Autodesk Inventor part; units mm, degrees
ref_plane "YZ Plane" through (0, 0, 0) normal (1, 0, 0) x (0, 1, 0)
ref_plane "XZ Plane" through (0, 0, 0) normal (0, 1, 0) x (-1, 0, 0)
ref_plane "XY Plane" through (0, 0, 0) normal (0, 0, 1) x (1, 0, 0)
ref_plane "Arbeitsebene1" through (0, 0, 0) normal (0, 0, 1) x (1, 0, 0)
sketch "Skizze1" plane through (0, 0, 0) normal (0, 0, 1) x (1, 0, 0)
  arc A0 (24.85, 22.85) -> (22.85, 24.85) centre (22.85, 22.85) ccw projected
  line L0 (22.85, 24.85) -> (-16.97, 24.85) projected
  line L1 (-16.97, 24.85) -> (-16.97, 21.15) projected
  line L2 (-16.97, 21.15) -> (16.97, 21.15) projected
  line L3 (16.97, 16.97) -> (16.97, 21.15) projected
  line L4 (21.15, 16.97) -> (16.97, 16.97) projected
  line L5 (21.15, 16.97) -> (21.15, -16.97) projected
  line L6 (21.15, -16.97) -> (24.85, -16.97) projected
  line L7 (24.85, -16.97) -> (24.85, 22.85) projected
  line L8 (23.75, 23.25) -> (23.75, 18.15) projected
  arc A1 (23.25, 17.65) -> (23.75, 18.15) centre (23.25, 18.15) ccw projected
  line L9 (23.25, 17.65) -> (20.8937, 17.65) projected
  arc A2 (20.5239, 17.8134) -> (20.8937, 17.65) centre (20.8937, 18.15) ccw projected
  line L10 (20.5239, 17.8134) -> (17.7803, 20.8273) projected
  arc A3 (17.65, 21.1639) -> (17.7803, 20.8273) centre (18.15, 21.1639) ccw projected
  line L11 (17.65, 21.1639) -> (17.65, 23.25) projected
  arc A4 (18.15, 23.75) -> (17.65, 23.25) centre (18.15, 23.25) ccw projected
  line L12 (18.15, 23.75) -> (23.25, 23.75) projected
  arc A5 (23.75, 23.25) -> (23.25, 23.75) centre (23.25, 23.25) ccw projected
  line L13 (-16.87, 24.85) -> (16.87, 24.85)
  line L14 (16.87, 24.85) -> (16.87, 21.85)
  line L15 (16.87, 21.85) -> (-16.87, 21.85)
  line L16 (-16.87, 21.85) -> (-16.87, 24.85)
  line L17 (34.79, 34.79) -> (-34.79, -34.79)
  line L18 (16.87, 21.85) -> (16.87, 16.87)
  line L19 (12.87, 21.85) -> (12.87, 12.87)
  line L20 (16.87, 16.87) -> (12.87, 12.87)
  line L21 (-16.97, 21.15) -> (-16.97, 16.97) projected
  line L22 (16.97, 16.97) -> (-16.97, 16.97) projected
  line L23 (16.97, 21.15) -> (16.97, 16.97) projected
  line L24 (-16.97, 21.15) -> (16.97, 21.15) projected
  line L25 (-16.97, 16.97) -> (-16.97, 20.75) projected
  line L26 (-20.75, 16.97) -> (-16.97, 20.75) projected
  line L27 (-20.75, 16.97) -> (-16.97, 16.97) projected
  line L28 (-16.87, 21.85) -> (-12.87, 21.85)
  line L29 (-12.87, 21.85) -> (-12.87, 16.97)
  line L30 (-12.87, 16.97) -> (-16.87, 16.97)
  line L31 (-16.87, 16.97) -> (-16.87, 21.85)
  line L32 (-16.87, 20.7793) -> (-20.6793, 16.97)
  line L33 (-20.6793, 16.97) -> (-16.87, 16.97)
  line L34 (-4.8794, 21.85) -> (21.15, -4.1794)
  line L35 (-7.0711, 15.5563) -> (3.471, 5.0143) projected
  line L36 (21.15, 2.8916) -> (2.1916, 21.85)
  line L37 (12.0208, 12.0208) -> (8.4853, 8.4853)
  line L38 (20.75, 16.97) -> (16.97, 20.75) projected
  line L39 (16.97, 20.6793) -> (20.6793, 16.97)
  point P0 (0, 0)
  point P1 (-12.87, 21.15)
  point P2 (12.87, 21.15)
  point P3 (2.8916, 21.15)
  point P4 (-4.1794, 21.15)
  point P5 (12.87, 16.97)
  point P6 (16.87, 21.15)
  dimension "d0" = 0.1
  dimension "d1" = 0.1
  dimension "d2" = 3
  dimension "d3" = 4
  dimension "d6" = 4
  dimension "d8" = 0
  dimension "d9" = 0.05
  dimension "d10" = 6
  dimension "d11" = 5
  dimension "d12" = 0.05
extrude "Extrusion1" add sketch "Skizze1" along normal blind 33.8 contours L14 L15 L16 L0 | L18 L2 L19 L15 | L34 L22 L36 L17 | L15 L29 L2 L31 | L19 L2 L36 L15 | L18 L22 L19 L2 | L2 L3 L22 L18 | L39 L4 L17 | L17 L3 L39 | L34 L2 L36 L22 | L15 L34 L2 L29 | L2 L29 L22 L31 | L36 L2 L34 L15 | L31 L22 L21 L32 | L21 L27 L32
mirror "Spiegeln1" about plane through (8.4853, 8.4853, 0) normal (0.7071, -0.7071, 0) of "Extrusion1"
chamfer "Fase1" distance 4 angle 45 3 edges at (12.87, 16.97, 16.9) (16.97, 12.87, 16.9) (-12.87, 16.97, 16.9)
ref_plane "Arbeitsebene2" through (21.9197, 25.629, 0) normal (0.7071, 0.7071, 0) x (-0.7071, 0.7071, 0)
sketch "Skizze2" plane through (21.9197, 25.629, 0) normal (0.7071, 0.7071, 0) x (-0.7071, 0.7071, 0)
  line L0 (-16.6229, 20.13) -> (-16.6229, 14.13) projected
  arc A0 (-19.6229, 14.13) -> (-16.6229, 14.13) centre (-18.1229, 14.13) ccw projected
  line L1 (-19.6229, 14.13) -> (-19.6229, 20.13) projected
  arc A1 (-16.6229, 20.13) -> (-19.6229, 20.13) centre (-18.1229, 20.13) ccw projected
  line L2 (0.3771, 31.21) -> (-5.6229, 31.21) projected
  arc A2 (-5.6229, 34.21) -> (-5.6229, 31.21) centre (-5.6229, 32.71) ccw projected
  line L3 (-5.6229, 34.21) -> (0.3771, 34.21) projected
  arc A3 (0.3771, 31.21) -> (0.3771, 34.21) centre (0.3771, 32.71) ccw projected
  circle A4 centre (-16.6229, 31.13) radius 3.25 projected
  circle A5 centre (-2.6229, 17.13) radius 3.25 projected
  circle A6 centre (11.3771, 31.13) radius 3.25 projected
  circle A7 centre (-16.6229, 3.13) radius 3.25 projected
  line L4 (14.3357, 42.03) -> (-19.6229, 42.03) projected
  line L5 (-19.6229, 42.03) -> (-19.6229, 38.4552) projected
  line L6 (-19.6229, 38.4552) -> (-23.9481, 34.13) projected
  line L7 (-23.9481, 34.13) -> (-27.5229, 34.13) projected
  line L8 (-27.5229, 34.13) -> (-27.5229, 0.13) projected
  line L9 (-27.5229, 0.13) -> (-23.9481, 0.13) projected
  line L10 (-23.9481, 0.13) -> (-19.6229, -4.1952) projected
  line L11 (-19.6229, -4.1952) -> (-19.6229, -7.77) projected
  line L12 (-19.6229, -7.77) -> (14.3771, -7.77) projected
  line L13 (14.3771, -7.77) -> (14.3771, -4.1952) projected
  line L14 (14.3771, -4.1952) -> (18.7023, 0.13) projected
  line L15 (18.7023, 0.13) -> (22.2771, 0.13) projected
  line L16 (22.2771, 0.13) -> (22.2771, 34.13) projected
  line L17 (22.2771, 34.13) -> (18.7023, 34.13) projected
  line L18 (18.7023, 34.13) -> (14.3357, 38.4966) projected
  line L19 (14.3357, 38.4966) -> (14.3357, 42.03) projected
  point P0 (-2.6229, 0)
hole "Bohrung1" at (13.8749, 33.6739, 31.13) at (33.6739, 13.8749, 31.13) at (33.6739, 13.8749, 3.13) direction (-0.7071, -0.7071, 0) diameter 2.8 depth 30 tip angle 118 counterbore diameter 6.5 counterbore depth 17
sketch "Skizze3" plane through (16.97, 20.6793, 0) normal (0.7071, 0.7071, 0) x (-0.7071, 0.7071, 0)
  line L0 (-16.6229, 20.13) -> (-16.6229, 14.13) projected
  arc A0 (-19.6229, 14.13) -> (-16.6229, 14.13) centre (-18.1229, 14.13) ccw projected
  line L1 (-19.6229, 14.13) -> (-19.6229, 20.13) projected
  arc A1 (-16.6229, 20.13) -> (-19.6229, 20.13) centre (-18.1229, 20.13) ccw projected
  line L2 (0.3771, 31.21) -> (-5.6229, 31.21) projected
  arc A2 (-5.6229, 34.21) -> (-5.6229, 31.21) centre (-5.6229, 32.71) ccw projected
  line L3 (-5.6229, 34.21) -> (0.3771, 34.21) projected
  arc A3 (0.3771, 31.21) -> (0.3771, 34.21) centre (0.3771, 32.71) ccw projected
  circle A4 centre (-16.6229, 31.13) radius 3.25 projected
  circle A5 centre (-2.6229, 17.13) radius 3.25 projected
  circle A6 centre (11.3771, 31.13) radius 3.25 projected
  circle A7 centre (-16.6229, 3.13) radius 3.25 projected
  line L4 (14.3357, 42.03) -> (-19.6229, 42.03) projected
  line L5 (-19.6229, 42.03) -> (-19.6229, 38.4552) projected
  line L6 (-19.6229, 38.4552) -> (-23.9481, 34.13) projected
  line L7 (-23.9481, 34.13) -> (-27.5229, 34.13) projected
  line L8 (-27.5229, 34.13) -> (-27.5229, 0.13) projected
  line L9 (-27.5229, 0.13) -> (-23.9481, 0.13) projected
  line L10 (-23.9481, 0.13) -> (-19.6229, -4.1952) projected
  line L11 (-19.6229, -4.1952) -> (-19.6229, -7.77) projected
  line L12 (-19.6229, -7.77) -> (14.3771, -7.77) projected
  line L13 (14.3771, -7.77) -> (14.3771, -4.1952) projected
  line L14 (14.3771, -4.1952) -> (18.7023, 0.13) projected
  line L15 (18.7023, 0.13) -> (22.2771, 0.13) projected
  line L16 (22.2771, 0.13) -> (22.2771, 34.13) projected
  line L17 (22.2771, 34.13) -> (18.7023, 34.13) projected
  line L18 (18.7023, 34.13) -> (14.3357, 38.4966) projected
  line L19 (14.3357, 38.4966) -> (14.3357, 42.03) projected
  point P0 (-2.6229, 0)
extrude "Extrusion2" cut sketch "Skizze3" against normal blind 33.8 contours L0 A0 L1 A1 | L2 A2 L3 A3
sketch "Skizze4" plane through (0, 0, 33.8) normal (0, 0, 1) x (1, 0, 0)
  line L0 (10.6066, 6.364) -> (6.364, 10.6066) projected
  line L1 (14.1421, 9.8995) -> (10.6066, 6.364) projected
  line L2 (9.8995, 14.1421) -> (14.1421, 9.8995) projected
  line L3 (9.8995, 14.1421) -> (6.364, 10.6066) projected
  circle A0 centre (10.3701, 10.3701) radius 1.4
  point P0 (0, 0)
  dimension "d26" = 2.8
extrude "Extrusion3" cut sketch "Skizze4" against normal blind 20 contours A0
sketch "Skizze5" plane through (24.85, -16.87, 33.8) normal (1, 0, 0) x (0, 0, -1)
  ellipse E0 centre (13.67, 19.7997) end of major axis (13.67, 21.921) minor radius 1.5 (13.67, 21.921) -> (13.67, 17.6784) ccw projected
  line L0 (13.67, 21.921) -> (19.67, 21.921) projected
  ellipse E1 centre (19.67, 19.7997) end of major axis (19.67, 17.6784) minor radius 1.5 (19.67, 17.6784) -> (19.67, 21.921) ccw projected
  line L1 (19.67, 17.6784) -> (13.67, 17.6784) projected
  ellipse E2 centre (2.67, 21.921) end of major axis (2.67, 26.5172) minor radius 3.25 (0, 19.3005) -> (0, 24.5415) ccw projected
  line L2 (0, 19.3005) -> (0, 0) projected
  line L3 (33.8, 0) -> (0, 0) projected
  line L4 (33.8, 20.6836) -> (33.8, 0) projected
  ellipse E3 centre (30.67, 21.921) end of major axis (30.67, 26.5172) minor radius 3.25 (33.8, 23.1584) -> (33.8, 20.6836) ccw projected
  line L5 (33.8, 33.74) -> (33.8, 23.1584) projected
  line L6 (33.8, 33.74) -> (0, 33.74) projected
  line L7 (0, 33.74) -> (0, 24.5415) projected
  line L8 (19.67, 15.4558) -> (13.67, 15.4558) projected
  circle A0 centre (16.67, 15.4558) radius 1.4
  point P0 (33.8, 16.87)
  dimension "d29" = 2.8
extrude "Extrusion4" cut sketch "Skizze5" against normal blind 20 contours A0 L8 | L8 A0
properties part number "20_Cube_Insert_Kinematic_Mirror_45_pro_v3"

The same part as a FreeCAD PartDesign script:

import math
import FreeCAD as App
import Part
import Sketcher
from FreeCAD import Vector
Q = App.Units.Quantity


def edges_at(feature, points):
    """Names of the edges that pass closest to the given points."""
    edges = feature.Shape.Edges
    near = lambda p: min(range(len(edges)), key=lambda i: edges[i].distToShape(Part.Vertex(*p))[0])
    return sorted({f"Edge{near(p) + 1}" for p in points})

doc = App.newDocument("Part")
params = doc.addObject("Spreadsheet::Sheet", "Params")
for row, (alias, value) in enumerate([
    ("sketch1_length", "5 mm"),
    ("sketch1_width", "0.1 mm"),
    ("sketch1_height", "3.7 mm"),
    ("sketch1_width2", "33.74 mm"),
    ("sketch1_height2", "4.18 mm"),
    ("pad1_length", "33.8 mm"),
    ("chamfer_size", "4 mm"),
    ("sketch2_diameter", "2.8 mm"),
    ("hole_diameter", "2.8 mm"),
    ("hole_depth", "30 mm"),
    ("hole_cbore_diameter", "6.5 mm"),
    ("hole_cbore_depth", "17 mm"),
    ("sketch3_radius", "1.5 mm"),
    ("sketch3_width", "6 mm"),
    ("pocket1_length", "33.8 mm"),
    ("sketch4_diameter", "2.8 mm"),
    ("pocket2_length", "20 mm"),
    ("sketch5_diameter", "2.8 mm"),
    ("pocket3_length", "20 mm"),
], start=1):
    params.set(f"A{row}", alias)
    params.set(f"B{row}", "=" + value)
    params.setAlias(f"B{row}", alias)

body = doc.addObject("PartDesign::Body", "Body")

sketch1 = doc.addObject("Sketcher::SketchObject", "Sketch")
body.addObject(sketch1)
sketch1.AttachmentSupport = (doc.XY_Plane, [""])
sketch1.MapMode = "FlatFace"
sketch1.addGeometry([
    Part.LineSegment(Vector(16.87, 24.85, 0), Vector(-16.87, 24.85, 0)),
    Part.LineSegment(Vector(-16.87, 24.85, 0), Vector(-16.87, 20.78, 0)),
    Part.LineSegment(Vector(-16.87, 20.78, 0), Vector(-20.68, 16.97, 0)),
    Part.LineSegment(Vector(-20.68, 16.97, 0), Vector(-12.87, 16.97, 0)),
    Part.LineSegment(Vector(-12.87, 16.97, 0), Vector(-12.87, 21.15, 0)),
    Part.LineSegment(Vector(-12.87, 21.15, 0), Vector(-4.18, 21.15, 0)),
    Part.LineSegment(Vector(-4.18, 21.15, 0), Vector(8.49, 8.49, 0)),
    Part.LineSegment(Vector(8.49, 8.49, 0), Vector(12.02, 12.02, 0)),
    Part.LineSegment(Vector(12.02, 12.02, 0), Vector(2.89, 21.15, 0)),
    Part.LineSegment(Vector(2.89, 21.15, 0), Vector(12.87, 21.15, 0)),
    Part.LineSegment(Vector(12.87, 21.15, 0), Vector(12.87, 16.97, 0)),
    Part.LineSegment(Vector(12.87, 16.97, 0), Vector(20.68, 16.97, 0)),
    Part.LineSegment(Vector(20.68, 16.97, 0), Vector(16.97, 20.68, 0)),
    Part.LineSegment(Vector(16.97, 20.68, 0), Vector(16.97, 21.15, 0)),
    Part.LineSegment(Vector(16.97, 21.15, 0), Vector(16.87, 21.15, 0)),
    Part.LineSegment(Vector(16.87, 21.15, 0), Vector(16.87, 24.85, 0)),
], False)
sketch1.addConstraint([
    Sketcher.Constraint("Coincident", 0, 2, 1, 1),
    Sketcher.Constraint("Coincident", 1, 2, 2, 1),
    Sketcher.Constraint("Coincident", 2, 2, 3, 1),
    Sketcher.Constraint("Coincident", 3, 2, 4, 1),
    Sketcher.Constraint("Coincident", 4, 2, 5, 1),
    Sketcher.Constraint("Coincident", 5, 2, 6, 1),
    Sketcher.Constraint("Coincident", 6, 2, 7, 1),
    Sketcher.Constraint("Coincident", 7, 2, 8, 1),
    Sketcher.Constraint("Coincident", 8, 2, 9, 1),
    Sketcher.Constraint("Coincident", 9, 2, 10, 1),
    Sketcher.Constraint("Coincident", 10, 2, 11, 1),
    Sketcher.Constraint("Coincident", 11, 2, 12, 1),
    Sketcher.Constraint("Coincident", 12, 2, 13, 1),
    Sketcher.Constraint("Coincident", 13, 2, 14, 1),
    Sketcher.Constraint("Coincident", 14, 2, 15, 1),
    Sketcher.Constraint("Coincident", 15, 2, 0, 1),
    Sketcher.Constraint("Horizontal", 0),
    Sketcher.Constraint("Vertical", 1),
    Sketcher.Constraint("Horizontal", 3),
    Sketcher.Constraint("Vertical", 4),
    Sketcher.Constraint("Horizontal", 5),
    Sketcher.Constraint("Horizontal", 9),
    Sketcher.Constraint("Vertical", 10),
    Sketcher.Constraint("Horizontal", 11),
    Sketcher.Constraint("Vertical", 13),
    Sketcher.Constraint("Horizontal", 14),
    Sketcher.Constraint("Vertical", 15),
    Sketcher.Constraint("Symmetric", 4, 2, 9, 2, -2),
    Sketcher.Constraint("Symmetric", 2, 2, 11, 2, -2),
    Sketcher.Constraint("Perpendicular", 2, 6),
    Sketcher.Constraint("Perpendicular", 6, 7),
    Sketcher.Constraint("Perpendicular", 7, 8),
    Sketcher.Constraint("Parallel", 8, 12),
    Sketcher.Constraint("Horizontal", 9, 2, 13, 2),
    Sketcher.Constraint("Distance", 7, 5.0),
    Sketcher.Constraint("DistanceX", 14, 2, 14, 1, 0.1),
    Sketcher.Constraint("DistanceX", 1, 2, 3, 2, 4.0),
    Sketcher.Constraint("DistanceX", 9, 2, 14, 2, 4.0),
    Sketcher.Constraint("Angle", 2, Q("-135 deg")),
    Sketcher.Constraint("DistanceY", 15, 1, 15, 2, 3.7),
    Sketcher.Constraint("DistanceX", 0, 2, 0, 1, 33.74),
    Sketcher.Constraint("DistanceY", 4, 1, 4, 2, 4.18),
    Sketcher.Constraint("DistanceX", 2, 2, 5, 2, 16.5),
    Sketcher.Constraint("DistanceY", -1, 1, 0, 2, 24.85),
    Sketcher.Constraint("DistanceX", 3, 1, 3, 2, 7.8093),
    Sketcher.Constraint("DistanceY", 6, 2, 1, 2, 12.294),
])
sketch1.setExpression("Constraints[34]", "Params.sketch1_length")
sketch1.setExpression("Constraints[35]", "Params.sketch1_width")
sketch1.setExpression("Constraints[39]", "Params.sketch1_height")
sketch1.setExpression("Constraints[40]", "Params.sketch1_width2")
sketch1.setExpression("Constraints[41]", "Params.sketch1_height2")
pad1 = doc.addObject("PartDesign::Pad", "Pad")
body.addObject(pad1)
pad1.Profile = sketch1
pad1.setExpression("Length", "Params.pad1_length")
doc.recompute()

datumplane = doc.addObject("PartDesign::Plane", "DatumPlane")
body.addObject(datumplane)
datumplane.Placement = App.Placement(Vector(0, 0, 0), App.Rotation(Vector(0.707106781, 0.707106781, 0), Vector(0, 0, -1), Vector(-0.707106781, 0.707106781, 0), "ZXY"))
mirrored = doc.addObject("PartDesign::Mirrored", "Mirrored")
body.addObject(mirrored)
mirrored.Originals = [pad1]
mirrored.MirrorPlane = (datumplane, [""])
body.Tip = mirrored
doc.recompute()

chamfer = doc.addObject("PartDesign::Chamfer", "Chamfer")
body.addObject(chamfer)
chamfer.Base = (mirrored, edges_at(mirrored, [(12.87, 16.97, 16.9), (16.97, 12.87, 16.9), (-12.87, 16.97, 16.9)]))
chamfer.setExpression("Size", "Params.chamfer_size")

sketch2 = doc.addObject("Sketcher::SketchObject", "Sketch001")
body.addObject(sketch2)
sketch2.Placement = App.Placement(Vector(23.7744, 23.7744, 0), App.Rotation(Vector(-0.707106781, 0.707106781, 0), Vector(0, 0, 0.999999999), Vector(0.707106781, 0.707106781, 0), "ZXY"))
sketch2.addGeometry([
    Part.Circle(Vector(14, 31.1, 0), Vector(0, 0, 1), 1.4),
    Part.Circle(Vector(-14, 31.1, 0), Vector(0, 0, 1), 1.4),
    Part.Circle(Vector(-14, 3.1, 0), Vector(0, 0, 1), 1.4),
], False)
sketch2.addConstraint([
    Sketcher.Constraint("Equal", 0, 1),
    Sketcher.Constraint("Equal", 1, 2),
    Sketcher.Constraint("Symmetric", 0, 3, 1, 3, -2),
    Sketcher.Constraint("Vertical", 1, 3, 2, 3),
    Sketcher.Constraint("Diameter", 0, 2.8),
    Sketcher.Constraint("DistanceX", -1, 1, 0, 3, 14.0),
    Sketcher.Constraint("DistanceY", 2, 3, 1, 3, 28.0),
    Sketcher.Constraint("DistanceY", -1, 1, 0, 3, 31.13),
])
sketch2.setExpression("Constraints[4]", "Params.sketch2_diameter")
doc.recompute()
hole = doc.addObject("PartDesign::Hole", "Hole")
body.addObject(hole)
hole.Profile = sketch2
hole.ThreadType = "None"
hole.setExpression("Diameter", "Params.hole_diameter")
hole.DepthType = "Dimension"
hole.setExpression("Depth", "Params.hole_depth")
hole.DrillPoint = "Angled"
hole.DrillPointAngle = 118
hole.HoleCutType = "Counterbore"
hole.setExpression("HoleCutDiameter", "Params.hole_cbore_diameter")
hole.setExpression("HoleCutDepth", "Params.hole_cbore_depth")

sketch3 = doc.addObject("Sketcher::SketchObject", "Sketch002")
body.addObject(sketch3)
sketch3.Placement = App.Placement(Vector(16.97, 20.6793, 0), App.Rotation(Vector(-0.707106781, 0.707106781, 0), Vector(0, 0, 0.999999999), Vector(0.707106781, 0.707106781, 0), "ZXY"))
sketch3.addGeometry([
    Part.LineSegment(Vector(-16.6, 14.1, 0), Vector(-16.6, 20.1, 0)),
    Part.ArcOfCircle(Part.Circle(Vector(-18.1, 20.1, 0), Vector(0, 0, 1), 1.5), math.radians(0), math.radians(180)),
    Part.LineSegment(Vector(-19.6, 20.1, 0), Vector(-19.6, 14.1, 0)),
    Part.ArcOfCircle(Part.Circle(Vector(-18.1, 14.1, 0), Vector(0, 0, 1), 1.5), math.radians(180), math.radians(360)),
    Part.LineSegment(Vector(-5.6, 31.2, 0), Vector(0.4, 31.2, 0)),
    Part.ArcOfCircle(Part.Circle(Vector(0.4, 32.7, 0), Vector(0, 0, 1), 1.5), math.radians(-90), math.radians(90)),
    Part.LineSegment(Vector(0.4, 34.2, 0), Vector(-5.6, 34.2, 0)),
    Part.ArcOfCircle(Part.Circle(Vector(-5.6, 32.7, 0), Vector(0, 0, 1), 1.5), math.radians(90), math.radians(270)),
], False)
sketch3.addConstraint([
    Sketcher.Constraint("Tangent", 0, 2, 1, 1),
    Sketcher.Constraint("Tangent", 1, 2, 2, 1),
    Sketcher.Constraint("Tangent", 2, 2, 3, 1),
    Sketcher.Constraint("Tangent", 3, 2, 0, 1),
    Sketcher.Constraint("Tangent", 4, 2, 5, 1),
    Sketcher.Constraint("Tangent", 5, 2, 6, 1),
    Sketcher.Constraint("Tangent", 6, 2, 7, 1),
    Sketcher.Constraint("Tangent", 7, 2, 4, 1),
    Sketcher.Constraint("Vertical", 0),
    Sketcher.Constraint("Vertical", 2),
    Sketcher.Constraint("Horizontal", 4),
    Sketcher.Constraint("Horizontal", 6),
    Sketcher.Constraint("Equal", 3, 5),
    Sketcher.Constraint("Equal", 6, 0),
    Sketcher.Constraint("Radius", 1, 1.5),
    Sketcher.Constraint("DistanceX", 4, 1, 4, 2, 6.0),
    Sketcher.Constraint("DistanceX", 0, 2, 7, 3, 11.0),
    Sketcher.Constraint("DistanceY", -1, 1, 1, 3, 20.13),
    Sketcher.Constraint("DistanceY", -1, 1, 5, 3, 32.71),
    Sketcher.Constraint("DistanceX", 1, 3, -1, 1, 18.123),
])
sketch3.setExpression("Constraints[14]", "Params.sketch3_radius")
sketch3.setExpression("Constraints[15]", "Params.sketch3_width")
pocket1 = doc.addObject("PartDesign::Pocket", "Pocket")
body.addObject(pocket1)
pocket1.Profile = sketch3
pocket1.setExpression("Length", "Params.pocket1_length")

sketch4 = doc.addObject("Sketcher::SketchObject", "Sketch003")
body.addObject(sketch4)
sketch4.AttachmentSupport = (doc.XY_Plane, [""])
sketch4.MapMode = "FlatFace"
sketch4.AttachmentOffset = App.Placement(Vector(0, 0, 33.8), App.Rotation())
sketch4.addGeometry(Part.Circle(Vector(10.4, 10.4, 0), Vector(0, 0, 1), 1.4), False)
sketch4.addConstraint([
    Sketcher.Constraint("Diameter", 0, 2.8),
    Sketcher.Constraint("DistanceX", -1, 1, 0, 3, 10.37),
    Sketcher.Constraint("DistanceY", -1, 1, 0, 3, 10.37),
])
sketch4.setExpression("Constraints[0]", "Params.sketch4_diameter")
pocket2 = doc.addObject("PartDesign::Pocket", "Pocket001")
body.addObject(pocket2)
pocket2.Profile = sketch4
pocket2.setExpression("Length", "Params.pocket2_length")

sketch5 = doc.addObject("Sketcher::SketchObject", "Sketch004")
body.addObject(sketch5)
sketch5.AttachmentSupport = (doc.YZ_Plane, [""])
sketch5.MapMode = "FlatFace"
sketch5.AttachmentOffset = App.Placement(Vector(0, 0, 24.85), App.Rotation())
sketch5.addGeometry(Part.Circle(Vector(-1.4, 17.1, 0), Vector(0, 0, 1), 1.4), False)
sketch5.addConstraint([
    Sketcher.Constraint("Diameter", 0, 2.8),
    Sketcher.Constraint("DistanceY", -1, 1, 0, 3, 17.13),
    Sketcher.Constraint("DistanceX", 0, 3, -1, 1, 1.4142),
])
sketch5.setExpression("Constraints[0]", "Params.sketch5_diameter")
pocket3 = doc.addObject("PartDesign::Pocket", "Pocket002")
body.addObject(pocket3)
pocket3.Profile = sketch5
pocket3.setExpression("Length", "Params.pocket3_length")

doc.recompute()
